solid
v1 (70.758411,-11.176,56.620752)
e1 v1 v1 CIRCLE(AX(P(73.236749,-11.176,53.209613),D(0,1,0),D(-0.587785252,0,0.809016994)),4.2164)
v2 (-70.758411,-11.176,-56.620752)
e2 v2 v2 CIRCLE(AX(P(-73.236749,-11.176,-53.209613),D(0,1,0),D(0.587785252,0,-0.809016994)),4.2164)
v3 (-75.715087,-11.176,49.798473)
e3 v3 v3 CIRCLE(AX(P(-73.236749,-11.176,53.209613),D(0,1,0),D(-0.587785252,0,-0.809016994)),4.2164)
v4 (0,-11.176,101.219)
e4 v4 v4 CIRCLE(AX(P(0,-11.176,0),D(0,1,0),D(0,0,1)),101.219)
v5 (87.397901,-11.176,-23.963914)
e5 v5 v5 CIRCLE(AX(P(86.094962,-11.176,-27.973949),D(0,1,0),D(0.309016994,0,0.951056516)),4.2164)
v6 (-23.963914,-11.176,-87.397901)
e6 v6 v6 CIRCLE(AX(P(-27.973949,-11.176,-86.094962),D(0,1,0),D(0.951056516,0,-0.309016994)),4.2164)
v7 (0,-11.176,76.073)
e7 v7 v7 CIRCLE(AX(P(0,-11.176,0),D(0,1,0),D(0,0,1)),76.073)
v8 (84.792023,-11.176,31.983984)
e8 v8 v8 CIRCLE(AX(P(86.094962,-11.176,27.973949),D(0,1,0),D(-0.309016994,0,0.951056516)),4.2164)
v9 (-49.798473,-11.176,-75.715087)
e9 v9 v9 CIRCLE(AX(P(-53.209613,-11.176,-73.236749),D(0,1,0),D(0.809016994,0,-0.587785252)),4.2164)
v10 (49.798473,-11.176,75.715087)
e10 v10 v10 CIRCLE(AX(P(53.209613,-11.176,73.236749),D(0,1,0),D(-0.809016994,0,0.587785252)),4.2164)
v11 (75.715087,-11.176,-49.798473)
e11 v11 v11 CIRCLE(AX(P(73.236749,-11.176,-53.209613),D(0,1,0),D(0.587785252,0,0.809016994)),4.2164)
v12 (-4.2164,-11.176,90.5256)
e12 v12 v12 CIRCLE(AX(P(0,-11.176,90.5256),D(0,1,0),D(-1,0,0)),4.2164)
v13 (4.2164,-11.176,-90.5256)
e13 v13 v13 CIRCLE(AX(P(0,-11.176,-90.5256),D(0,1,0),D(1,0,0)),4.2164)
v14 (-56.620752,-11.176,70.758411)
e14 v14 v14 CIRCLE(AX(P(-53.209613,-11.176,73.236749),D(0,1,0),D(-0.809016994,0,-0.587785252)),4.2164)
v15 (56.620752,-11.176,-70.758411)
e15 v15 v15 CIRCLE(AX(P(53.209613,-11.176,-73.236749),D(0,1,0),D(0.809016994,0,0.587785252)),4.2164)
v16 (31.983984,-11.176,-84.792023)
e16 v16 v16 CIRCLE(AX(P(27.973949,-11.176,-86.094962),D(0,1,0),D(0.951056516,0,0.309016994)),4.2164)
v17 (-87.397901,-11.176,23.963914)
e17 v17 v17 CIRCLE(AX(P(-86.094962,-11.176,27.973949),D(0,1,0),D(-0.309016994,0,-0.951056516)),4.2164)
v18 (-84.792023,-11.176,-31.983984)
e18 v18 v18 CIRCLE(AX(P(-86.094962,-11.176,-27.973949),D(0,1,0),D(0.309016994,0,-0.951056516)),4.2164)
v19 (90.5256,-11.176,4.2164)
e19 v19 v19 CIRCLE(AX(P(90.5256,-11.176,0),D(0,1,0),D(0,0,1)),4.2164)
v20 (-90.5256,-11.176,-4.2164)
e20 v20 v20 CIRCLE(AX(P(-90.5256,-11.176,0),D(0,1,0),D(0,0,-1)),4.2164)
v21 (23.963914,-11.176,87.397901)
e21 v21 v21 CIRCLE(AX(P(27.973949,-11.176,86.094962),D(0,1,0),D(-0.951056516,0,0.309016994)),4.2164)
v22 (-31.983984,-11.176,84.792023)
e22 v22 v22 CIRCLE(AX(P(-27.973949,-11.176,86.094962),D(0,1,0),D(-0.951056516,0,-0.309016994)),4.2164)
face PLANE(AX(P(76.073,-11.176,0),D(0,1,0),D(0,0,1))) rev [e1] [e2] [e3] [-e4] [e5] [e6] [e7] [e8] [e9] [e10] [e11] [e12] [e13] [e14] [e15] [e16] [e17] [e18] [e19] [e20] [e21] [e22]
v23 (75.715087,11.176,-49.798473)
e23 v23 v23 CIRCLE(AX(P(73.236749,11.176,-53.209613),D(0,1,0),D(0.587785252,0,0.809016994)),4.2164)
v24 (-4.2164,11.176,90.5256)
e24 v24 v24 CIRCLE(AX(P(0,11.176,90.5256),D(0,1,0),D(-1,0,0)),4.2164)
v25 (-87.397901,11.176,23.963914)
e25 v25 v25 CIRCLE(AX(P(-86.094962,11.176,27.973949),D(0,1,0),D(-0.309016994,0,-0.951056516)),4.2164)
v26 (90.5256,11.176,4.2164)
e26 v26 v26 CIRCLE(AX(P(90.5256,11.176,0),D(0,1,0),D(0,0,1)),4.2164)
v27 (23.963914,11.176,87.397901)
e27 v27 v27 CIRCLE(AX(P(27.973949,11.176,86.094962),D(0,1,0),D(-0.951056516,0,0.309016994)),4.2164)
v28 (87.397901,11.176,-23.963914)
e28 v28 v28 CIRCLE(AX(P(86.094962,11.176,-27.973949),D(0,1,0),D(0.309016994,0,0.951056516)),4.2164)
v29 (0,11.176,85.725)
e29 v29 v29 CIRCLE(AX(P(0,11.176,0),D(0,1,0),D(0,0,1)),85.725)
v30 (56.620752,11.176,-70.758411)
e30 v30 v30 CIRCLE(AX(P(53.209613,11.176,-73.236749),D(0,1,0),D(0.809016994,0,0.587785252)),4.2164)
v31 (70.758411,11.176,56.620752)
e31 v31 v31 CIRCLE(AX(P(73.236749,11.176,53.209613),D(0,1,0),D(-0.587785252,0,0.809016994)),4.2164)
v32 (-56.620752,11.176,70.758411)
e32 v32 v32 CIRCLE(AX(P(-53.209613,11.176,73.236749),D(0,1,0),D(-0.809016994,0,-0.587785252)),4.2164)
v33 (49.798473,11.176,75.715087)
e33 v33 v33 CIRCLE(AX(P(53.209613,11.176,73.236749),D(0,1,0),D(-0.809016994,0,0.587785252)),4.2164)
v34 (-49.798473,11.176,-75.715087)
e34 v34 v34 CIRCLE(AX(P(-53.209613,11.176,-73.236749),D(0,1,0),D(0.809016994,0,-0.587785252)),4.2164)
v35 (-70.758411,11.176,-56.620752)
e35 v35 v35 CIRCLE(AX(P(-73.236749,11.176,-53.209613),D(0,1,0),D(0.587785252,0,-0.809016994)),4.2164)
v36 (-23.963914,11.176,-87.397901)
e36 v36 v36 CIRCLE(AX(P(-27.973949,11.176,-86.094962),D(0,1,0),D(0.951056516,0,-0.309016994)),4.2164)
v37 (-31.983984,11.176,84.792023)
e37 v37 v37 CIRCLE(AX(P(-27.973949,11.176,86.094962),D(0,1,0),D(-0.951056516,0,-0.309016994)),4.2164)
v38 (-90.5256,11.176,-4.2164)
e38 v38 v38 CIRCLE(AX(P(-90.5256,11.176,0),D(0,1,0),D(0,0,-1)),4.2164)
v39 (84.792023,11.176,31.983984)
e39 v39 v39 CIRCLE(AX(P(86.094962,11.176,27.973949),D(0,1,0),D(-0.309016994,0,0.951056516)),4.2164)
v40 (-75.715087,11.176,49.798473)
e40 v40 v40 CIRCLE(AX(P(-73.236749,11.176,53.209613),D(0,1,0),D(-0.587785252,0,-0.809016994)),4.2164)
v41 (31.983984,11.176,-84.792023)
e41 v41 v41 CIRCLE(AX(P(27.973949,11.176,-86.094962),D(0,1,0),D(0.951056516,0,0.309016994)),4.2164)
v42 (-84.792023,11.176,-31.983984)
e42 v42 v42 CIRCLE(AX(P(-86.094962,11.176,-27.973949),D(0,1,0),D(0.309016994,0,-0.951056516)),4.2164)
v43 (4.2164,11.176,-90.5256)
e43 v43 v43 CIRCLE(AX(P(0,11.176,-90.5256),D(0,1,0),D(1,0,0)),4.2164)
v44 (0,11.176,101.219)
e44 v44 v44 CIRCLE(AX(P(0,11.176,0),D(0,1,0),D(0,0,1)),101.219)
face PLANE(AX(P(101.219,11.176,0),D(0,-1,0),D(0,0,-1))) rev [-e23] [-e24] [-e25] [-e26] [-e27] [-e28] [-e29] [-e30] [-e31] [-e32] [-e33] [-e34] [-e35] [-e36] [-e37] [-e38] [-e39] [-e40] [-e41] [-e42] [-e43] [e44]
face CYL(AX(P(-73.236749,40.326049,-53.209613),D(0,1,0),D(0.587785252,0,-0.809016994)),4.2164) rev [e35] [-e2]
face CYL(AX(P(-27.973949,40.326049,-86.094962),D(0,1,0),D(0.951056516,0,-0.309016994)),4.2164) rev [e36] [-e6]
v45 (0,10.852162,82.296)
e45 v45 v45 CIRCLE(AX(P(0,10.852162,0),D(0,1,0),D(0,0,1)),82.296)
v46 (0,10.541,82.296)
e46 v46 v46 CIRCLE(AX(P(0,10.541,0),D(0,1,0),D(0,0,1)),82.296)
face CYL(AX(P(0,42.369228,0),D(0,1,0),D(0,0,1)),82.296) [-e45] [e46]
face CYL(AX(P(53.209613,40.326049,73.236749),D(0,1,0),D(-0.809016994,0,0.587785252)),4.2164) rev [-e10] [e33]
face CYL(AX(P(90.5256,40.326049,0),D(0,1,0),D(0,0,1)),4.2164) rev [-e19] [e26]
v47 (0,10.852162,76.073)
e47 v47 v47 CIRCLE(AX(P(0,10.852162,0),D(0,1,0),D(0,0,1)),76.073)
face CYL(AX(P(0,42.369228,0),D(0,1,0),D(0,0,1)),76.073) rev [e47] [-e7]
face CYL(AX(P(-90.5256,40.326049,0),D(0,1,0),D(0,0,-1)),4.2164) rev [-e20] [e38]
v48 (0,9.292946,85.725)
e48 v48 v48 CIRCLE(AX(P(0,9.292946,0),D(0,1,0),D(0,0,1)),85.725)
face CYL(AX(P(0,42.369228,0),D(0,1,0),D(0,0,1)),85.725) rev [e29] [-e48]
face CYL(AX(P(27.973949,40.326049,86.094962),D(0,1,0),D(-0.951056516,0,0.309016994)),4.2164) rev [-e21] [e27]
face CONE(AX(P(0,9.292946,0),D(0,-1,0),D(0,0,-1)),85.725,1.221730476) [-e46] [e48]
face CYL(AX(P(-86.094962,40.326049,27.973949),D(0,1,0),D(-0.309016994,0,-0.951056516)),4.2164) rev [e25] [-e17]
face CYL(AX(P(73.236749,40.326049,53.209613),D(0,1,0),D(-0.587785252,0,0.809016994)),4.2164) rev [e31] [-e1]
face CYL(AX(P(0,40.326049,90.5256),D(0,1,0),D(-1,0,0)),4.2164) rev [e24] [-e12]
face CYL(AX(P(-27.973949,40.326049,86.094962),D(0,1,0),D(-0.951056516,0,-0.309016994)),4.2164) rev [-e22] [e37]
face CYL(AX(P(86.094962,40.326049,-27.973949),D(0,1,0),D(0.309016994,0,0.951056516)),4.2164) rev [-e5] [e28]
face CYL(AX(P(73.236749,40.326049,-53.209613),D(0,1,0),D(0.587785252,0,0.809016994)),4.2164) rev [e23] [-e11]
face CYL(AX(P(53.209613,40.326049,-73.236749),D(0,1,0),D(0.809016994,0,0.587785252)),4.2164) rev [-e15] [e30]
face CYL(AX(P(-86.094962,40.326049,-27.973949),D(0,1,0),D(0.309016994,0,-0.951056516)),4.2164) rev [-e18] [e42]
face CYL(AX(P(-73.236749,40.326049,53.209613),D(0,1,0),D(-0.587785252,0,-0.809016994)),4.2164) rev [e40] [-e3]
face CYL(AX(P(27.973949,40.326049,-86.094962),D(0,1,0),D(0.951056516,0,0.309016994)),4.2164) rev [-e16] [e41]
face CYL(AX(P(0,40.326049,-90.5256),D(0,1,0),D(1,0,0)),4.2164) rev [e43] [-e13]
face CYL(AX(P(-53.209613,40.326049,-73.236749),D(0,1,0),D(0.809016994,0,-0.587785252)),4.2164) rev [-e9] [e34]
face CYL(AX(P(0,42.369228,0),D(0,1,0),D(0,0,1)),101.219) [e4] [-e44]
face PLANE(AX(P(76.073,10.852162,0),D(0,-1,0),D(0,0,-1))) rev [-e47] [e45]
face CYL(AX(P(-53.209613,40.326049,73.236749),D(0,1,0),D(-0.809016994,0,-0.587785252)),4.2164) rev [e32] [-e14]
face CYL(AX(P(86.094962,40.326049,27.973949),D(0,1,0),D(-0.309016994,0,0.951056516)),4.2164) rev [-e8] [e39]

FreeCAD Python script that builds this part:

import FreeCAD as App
import Part
import Sketcher
from FreeCAD import Vector
Q = App.Units.Quantity

doc = App.newDocument("Part")
body = doc.addObject("PartDesign::Body", "Body")

sketch1 = body.newObject("Sketcher::SketchObject", "Sketch")
sketch1.AttachmentSupport = (doc.getObject("XY_Plane"), [""])
sketch1.MapMode = "FlatFace"
sketch1.addGeometry([
    Part.LineSegment(Vector(101.22, -11.18, 0), Vector(101.22, 11.18, 0)),
    Part.LineSegment(Vector(101.22, 11.18, 0), Vector(85.72, 11.18, 0)),
    Part.LineSegment(Vector(85.72, 11.18, 0), Vector(85.72, 9.29, 0)),
    Part.LineSegment(Vector(85.72, 9.29, 0), Vector(82.3, 10.54, 0)),
    Part.LineSegment(Vector(82.3, 10.54, 0), Vector(82.3, 10.85, 0)),
    Part.LineSegment(Vector(82.3, 10.85, 0), Vector(76.07, 10.85, 0)),
    Part.LineSegment(Vector(76.07, 10.85, 0), Vector(76.07, -11.18, 0)),
    Part.LineSegment(Vector(76.07, -11.18, 0), Vector(101.22, -11.18, 0)),
], False)
sketch1.addConstraint([
    Sketcher.Constraint("Coincident", 0, 2, 1, 1),
    Sketcher.Constraint("Coincident", 1, 2, 2, 1),
    Sketcher.Constraint("Coincident", 2, 2, 3, 1),
    Sketcher.Constraint("Coincident", 3, 2, 4, 1),
    Sketcher.Constraint("Coincident", 4, 2, 5, 1),
    Sketcher.Constraint("Coincident", 5, 2, 6, 1),
    Sketcher.Constraint("Coincident", 6, 2, 7, 1),
    Sketcher.Constraint("Coincident", 7, 2, 0, 1),
    Sketcher.Constraint("Vertical", 0),
    Sketcher.Constraint("Horizontal", 1),
    Sketcher.Constraint("Vertical", 2),
    Sketcher.Constraint("Vertical", 4),
    Sketcher.Constraint("Horizontal", 5),
    Sketcher.Constraint("Vertical", 6),
    Sketcher.Constraint("Horizontal", 7),
    Sketcher.Constraint("Angle", 3, Q("160 deg")),
    Sketcher.Constraint("DistanceX", 1, 2, 1, 1, Q("0.61 in")),
    Sketcher.Constraint("DistanceX", 7, 1, 7, 2, Q("0.99 in")),
    Sketcher.Constraint("DistanceY", 0, 1, 0, 2, Q("0.88 in")),
    Sketcher.Constraint("DistanceX", 5, 2, 5, 1, Q("0.245 in")),
    Sketcher.Constraint("DistanceY", -1, 1, 0, 2, Q("0.44 in")),
    Sketcher.Constraint("DistanceX", -1, 1, 3, 2, Q("3.24 in")),
    Sketcher.Constraint("DistanceY", -1, 1, 3, 2, Q("0.415 in")),
    Sketcher.Constraint("DistanceY", 4, 1, 4, 2, 0.311162),
])
revolution = body.newObject("PartDesign::Revolution", "Revolution")
revolution.Profile = sketch1
revolution.ReferenceAxis = (sketch1, ["V_Axis"])
revolution.Angle = 360

sketch2 = body.newObject("Sketcher::SketchObject", "Sketch001")
sketch2.AttachmentSupport = (doc.getObject("XY_Plane"), [""])
sketch2.MapMode = "FlatFace"
sketch2.addGeometry([
    Part.LineSegment(Vector(90.5, 11.2, 0), Vector(90.5, -11.2, 0)),
    Part.LineSegment(Vector(90.5, -11.2, 0), Vector(94.7, -11.2, 0)),
    Part.LineSegment(Vector(94.7, -11.2, 0), Vector(94.7, 11.2, 0)),
    Part.LineSegment(Vector(94.7, 11.2, 0), Vector(90.5, 11.2, 0)),
], False)
sketch2.addGeometry(Part.LineSegment(Vector(90.5, 11.2, 0), Vector(90.5, -11.2, 0)), True)
sketch2.addConstraint([
    Sketcher.Constraint("Coincident", 0, 2, 1, 1),
    Sketcher.Constraint("Coincident", 1, 2, 2, 1),
    Sketcher.Constraint("Coincident", 2, 2, 3, 1),
    Sketcher.Constraint("Coincident", 3, 2, 0, 1),
    Sketcher.Constraint("Vertical", 0),
    Sketcher.Constraint("Horizontal", 1),
    Sketcher.Constraint("Vertical", 2),
    Sketcher.Constraint("Horizontal", 3),
    Sketcher.Constraint("Vertical", 4),
    Sketcher.Constraint("Coincident", 4, 1, 3, 2),
    Sketcher.Constraint("Horizontal", 1, 2, 4, 2),
    Sketcher.Constraint("DistanceY", 0, 2, 0, 1, Q("0.88 in")),
    Sketcher.Constraint("DistanceX", 1, 1, 1, 2, Q("0.166 in")),
    Sketcher.Constraint("DistanceY", 0, 2, -1, 1, Q("0.44 in")),
    Sketcher.Constraint("DistanceX", -1, 1, 1, 2, Q("3.73 in")),
])
groove = body.newObject("PartDesign::Groove", "Groove")
groove.Profile = sketch2
groove.ReferenceAxis = (sketch2, ["Axis0"])
groove.Angle = 360
doc.recompute()

polarpattern = body.newObject("PartDesign::PolarPattern", "PolarPattern")
polarpattern.Originals = [groove]
polarpattern.Axis = (doc.getObject("Y_Axis"), [""])
polarpattern.Angle = 360
polarpattern.Occurrences = 20
body.Tip = polarpattern

doc.recompute()
